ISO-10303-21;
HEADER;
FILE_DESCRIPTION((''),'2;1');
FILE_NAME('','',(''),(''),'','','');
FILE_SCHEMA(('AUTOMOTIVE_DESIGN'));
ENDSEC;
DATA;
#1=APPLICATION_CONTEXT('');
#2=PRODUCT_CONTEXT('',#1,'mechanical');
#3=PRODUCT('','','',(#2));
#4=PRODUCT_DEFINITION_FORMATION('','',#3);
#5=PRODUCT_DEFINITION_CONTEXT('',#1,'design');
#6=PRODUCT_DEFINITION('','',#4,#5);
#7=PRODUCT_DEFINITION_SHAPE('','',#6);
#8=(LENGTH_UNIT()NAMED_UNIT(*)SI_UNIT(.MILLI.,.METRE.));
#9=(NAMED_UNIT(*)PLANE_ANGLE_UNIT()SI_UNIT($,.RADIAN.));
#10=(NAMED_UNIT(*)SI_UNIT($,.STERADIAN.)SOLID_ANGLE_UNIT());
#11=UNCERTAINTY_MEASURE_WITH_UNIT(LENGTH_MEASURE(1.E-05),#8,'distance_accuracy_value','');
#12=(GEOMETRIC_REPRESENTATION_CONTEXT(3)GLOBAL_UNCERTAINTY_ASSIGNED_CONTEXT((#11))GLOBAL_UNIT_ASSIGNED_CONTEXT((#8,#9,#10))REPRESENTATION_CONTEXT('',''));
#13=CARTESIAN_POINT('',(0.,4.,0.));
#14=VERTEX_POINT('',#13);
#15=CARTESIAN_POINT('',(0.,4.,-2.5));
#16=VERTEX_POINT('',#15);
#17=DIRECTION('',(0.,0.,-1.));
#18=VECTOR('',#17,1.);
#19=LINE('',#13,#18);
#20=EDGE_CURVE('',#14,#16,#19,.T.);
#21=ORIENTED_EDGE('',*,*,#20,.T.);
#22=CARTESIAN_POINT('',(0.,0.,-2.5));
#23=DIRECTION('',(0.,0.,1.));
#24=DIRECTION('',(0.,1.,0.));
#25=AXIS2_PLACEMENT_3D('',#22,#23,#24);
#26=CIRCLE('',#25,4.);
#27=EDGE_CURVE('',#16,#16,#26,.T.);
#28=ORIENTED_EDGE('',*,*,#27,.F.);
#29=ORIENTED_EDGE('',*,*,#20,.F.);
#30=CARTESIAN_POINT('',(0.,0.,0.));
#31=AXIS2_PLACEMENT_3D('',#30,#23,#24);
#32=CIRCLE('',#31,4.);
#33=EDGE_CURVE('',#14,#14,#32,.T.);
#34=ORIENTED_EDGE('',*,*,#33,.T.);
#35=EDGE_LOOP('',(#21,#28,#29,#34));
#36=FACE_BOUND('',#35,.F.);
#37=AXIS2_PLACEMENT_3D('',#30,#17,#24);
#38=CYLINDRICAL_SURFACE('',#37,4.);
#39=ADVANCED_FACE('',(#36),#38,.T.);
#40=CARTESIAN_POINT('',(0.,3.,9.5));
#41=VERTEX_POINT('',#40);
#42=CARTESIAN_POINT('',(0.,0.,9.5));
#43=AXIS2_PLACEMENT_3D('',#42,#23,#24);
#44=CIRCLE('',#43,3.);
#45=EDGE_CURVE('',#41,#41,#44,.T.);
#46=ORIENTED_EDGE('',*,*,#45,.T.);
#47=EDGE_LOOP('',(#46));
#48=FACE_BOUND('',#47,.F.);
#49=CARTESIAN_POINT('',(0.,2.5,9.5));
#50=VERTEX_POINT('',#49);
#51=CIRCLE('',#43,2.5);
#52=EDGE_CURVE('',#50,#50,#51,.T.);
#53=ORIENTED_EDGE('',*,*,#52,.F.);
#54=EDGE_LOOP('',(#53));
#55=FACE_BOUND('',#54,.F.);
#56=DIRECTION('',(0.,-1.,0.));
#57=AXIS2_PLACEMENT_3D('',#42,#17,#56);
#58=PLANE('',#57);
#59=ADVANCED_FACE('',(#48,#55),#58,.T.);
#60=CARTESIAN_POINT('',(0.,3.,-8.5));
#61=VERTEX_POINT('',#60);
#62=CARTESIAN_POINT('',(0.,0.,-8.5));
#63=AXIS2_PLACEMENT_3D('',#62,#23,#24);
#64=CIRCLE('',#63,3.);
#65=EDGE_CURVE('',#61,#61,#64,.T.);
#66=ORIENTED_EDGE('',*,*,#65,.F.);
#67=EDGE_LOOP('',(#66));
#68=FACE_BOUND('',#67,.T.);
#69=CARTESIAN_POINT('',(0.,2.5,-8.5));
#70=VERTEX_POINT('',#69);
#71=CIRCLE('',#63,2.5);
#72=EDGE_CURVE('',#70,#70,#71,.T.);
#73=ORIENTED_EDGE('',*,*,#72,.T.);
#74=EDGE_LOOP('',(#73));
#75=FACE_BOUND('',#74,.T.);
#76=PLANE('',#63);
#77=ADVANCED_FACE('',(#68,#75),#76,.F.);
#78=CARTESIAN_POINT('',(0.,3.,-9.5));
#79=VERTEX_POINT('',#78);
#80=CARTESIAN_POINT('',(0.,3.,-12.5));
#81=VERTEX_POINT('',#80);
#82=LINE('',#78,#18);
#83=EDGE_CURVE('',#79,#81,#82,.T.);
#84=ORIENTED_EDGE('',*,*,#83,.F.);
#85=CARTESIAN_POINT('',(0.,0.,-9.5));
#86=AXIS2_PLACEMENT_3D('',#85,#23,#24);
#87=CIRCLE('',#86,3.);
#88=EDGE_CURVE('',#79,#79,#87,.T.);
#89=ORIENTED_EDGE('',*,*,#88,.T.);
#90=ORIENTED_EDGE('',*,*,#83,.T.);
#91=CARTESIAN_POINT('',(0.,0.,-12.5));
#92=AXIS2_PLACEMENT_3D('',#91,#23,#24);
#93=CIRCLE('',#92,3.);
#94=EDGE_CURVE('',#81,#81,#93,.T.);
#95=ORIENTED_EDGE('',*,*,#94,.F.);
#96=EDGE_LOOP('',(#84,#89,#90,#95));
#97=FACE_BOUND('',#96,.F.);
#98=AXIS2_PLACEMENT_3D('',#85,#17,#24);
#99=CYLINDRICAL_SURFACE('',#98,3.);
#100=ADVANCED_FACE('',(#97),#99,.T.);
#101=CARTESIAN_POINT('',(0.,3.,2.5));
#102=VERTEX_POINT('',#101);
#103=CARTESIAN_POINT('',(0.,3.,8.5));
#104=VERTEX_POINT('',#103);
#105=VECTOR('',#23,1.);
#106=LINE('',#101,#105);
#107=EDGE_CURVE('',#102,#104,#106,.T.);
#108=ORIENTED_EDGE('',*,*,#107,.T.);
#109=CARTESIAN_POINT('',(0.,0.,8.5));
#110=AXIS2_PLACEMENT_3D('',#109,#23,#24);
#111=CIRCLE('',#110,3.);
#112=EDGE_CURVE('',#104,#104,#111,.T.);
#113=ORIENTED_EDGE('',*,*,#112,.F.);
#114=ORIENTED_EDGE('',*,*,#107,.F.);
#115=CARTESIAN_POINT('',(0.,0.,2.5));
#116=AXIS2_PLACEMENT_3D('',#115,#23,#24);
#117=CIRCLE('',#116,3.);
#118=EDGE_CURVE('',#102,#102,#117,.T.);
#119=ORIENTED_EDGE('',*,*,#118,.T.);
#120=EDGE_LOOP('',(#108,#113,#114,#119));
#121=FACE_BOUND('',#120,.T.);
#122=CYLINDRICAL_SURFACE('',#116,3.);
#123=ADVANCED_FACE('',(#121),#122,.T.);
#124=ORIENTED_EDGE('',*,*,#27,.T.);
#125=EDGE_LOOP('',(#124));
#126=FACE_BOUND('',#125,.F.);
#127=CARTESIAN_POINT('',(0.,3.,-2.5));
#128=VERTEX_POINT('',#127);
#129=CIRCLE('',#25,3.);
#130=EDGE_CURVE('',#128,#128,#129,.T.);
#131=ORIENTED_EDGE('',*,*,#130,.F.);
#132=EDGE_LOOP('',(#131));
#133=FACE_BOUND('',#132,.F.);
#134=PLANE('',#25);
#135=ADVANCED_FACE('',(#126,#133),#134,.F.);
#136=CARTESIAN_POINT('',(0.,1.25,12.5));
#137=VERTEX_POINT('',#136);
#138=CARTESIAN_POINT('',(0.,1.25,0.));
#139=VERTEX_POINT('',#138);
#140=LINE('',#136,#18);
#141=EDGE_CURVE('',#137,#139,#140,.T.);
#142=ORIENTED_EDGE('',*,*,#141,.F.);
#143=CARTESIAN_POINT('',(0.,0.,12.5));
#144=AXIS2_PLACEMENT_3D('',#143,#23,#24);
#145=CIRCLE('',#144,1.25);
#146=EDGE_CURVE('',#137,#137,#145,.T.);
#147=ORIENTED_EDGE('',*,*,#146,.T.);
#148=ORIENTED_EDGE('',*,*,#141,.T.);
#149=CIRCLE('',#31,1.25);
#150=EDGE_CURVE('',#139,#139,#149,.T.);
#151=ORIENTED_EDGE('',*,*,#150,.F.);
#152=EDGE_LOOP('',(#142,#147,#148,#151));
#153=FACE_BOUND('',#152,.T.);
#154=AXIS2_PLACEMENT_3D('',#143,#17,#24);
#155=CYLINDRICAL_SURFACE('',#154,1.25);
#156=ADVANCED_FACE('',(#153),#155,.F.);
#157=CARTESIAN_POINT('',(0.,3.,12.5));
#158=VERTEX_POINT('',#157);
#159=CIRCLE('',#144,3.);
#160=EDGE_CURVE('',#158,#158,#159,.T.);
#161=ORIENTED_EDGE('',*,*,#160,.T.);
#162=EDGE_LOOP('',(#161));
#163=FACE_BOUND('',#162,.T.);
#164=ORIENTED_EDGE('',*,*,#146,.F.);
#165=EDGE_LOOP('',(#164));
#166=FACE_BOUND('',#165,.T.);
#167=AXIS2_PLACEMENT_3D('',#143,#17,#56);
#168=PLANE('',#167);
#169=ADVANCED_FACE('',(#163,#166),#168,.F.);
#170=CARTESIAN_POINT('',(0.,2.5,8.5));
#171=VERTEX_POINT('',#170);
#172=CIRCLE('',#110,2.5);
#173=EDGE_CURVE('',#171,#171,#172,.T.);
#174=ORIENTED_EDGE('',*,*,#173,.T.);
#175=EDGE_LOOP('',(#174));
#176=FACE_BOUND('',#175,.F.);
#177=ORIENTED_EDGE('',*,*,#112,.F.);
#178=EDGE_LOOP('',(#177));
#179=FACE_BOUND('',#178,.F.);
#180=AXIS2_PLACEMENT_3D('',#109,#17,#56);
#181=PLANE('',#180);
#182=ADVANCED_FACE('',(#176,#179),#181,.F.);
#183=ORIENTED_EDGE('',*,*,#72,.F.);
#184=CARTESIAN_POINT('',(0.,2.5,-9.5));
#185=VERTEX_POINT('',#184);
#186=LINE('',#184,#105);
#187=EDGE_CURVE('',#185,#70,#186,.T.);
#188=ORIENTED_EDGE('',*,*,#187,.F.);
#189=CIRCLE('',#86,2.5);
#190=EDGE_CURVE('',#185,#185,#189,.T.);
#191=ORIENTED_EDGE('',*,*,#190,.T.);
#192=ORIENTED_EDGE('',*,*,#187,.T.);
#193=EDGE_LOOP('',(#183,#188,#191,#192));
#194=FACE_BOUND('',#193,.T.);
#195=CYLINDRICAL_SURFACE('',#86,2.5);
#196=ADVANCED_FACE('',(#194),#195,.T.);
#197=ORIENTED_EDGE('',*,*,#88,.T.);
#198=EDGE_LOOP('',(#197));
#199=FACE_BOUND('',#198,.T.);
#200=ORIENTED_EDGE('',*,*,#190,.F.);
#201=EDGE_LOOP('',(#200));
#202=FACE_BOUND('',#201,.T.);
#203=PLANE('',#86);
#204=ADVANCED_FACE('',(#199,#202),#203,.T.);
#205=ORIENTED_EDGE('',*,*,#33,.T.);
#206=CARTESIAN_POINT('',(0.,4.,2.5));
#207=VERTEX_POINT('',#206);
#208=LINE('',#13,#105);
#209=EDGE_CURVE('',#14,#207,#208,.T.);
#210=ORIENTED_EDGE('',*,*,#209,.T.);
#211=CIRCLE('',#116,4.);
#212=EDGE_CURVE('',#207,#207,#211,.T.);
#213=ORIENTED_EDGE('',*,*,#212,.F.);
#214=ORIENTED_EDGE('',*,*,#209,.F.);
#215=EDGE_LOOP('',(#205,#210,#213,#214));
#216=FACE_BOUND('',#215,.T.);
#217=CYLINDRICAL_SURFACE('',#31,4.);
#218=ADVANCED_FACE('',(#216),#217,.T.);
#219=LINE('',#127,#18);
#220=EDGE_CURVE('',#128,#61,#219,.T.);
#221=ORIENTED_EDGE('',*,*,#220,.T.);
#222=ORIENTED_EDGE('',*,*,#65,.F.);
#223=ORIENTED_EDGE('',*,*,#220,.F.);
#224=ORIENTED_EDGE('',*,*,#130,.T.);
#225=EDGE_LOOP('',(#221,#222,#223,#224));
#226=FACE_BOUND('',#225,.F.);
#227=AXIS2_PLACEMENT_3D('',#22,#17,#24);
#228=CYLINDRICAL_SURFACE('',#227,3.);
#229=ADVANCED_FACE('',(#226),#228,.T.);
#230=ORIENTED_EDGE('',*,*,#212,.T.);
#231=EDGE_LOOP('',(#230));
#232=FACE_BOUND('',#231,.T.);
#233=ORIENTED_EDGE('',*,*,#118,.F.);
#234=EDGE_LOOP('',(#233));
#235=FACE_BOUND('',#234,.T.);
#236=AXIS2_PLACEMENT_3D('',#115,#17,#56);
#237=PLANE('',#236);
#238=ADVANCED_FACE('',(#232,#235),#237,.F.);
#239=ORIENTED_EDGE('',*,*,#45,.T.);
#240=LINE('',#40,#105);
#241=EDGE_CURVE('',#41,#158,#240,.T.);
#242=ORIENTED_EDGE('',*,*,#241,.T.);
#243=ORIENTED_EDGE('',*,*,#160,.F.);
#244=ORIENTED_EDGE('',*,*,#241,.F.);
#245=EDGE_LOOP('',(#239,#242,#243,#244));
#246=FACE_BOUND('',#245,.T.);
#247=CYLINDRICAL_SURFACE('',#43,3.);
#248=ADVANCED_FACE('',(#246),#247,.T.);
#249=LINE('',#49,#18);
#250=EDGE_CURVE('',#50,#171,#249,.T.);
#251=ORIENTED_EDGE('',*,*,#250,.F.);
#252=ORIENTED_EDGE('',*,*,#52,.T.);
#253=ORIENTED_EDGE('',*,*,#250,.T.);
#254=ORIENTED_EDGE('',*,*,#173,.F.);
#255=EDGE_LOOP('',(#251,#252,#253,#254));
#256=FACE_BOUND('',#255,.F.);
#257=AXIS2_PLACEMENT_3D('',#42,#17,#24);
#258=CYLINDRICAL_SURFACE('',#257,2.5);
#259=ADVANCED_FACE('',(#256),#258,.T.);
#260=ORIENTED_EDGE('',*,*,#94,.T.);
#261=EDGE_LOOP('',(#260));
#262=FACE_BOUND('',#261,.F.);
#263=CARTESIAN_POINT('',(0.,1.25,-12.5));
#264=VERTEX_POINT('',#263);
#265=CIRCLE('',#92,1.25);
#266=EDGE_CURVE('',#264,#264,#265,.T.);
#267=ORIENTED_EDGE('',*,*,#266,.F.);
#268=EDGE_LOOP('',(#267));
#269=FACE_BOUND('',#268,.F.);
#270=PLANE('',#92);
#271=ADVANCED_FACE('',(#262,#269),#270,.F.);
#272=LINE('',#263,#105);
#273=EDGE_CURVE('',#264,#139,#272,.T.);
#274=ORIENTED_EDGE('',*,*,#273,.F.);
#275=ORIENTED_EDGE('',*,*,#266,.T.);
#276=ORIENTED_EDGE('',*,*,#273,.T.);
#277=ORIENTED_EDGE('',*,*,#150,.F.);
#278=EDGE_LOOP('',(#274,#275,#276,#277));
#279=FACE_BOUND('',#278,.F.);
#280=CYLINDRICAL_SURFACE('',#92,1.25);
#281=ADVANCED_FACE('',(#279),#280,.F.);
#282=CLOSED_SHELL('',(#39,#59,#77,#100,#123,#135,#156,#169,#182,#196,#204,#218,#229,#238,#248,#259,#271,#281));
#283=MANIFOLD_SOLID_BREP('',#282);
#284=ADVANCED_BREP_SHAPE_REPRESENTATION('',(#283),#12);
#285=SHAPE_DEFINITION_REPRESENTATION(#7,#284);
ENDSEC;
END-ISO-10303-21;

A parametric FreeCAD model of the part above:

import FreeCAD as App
import Part
import Sketcher
Q = App.Units.Quantity


def add_polygon(sketch, points):
    """Adds a closed chain of lines whose ends are joined by coincident constraints."""
    first, n = sketch.GeometryCount, len(points)
    for a, b in zip(points, points[1:] + points[:1]):
        sketch.addGeometry(Part.LineSegment(App.Vector(*a, 0), App.Vector(*b, 0)), False)
    for i in range(n):
        sketch.addConstraint(Sketcher.Constraint("Coincident", first + i, 2, first + (i + 1) % n, 1))

doc = App.newDocument("Part")
body = doc.addObject("PartDesign::Body", "Body")

sketch1 = doc.addObject("Sketcher::SketchObject", "Sketch")
body.addObject(sketch1)
sketch1.AttachmentSupport = (doc.YZ_Plane, [""])
sketch1.MapMode = "FlatFace"
add_polygon(sketch1, [(2.5, -9.5), (2.5, -8.5), (3, -8.5), (3, -2.5), (4, -2.5), (4, 0), (1.2, 0), (1.2, -12.5), (3, -12.5), (3, -9.5)])
sketch1.addConstraint([
    Sketcher.Constraint("Vertical", 0),
    Sketcher.Constraint("Horizontal", 1),
    Sketcher.Constraint("Vertical", 2),
    Sketcher.Constraint("Horizontal", 3),
    Sketcher.Constraint("Vertical", 4),
    Sketcher.Constraint("Horizontal", 5),
    Sketcher.Constraint("Vertical", 6),
    Sketcher.Constraint("Horizontal", 7),
    Sketcher.Constraint("Vertical", 8),
    Sketcher.Constraint("Horizontal", 9),
    Sketcher.Constraint("PointOnObject", 4, 2, -1),
    Sketcher.Constraint("Vertical", 2, 2, 7, 2),
    Sketcher.Constraint("Equal", 3, 0),
    Sketcher.Constraint("DistanceX", 3, 1, 3, 2, Q("1 mm")),
    Sketcher.Constraint("DistanceY", 8, 1, 8, 2, Q("3 mm")),
    Sketcher.Constraint("DistanceY", 4, 1, 4, 2, Q("2.5 mm")),
    Sketcher.Constraint("DistanceY", 6, 2, 6, 1, Q("12.5 mm")),
    Sketcher.Constraint("DistanceX", -1, 1, 1, 2, Q("3 mm")),
    Sketcher.Constraint("DistanceX", -1, 1, 0, 2, Q("2.5 mm")),
    Sketcher.Constraint("DistanceX", -1, 1, 5, 2, Q("1.25 mm")),
])
revolution = doc.addObject("PartDesign::Revolution", "Revolution")
body.addObject(revolution)
revolution.Profile = sketch1
revolution.ReferenceAxis = (sketch1, ["V_Axis"])
revolution.Angle = 360
doc.recompute()

mirrored = doc.addObject("PartDesign::Mirrored", "Mirrored")
body.addObject(mirrored)
mirrored.Originals = [revolution]
mirrored.MirrorPlane = (doc.XY_Plane, [""])
body.Tip = mirrored

doc.recompute()
